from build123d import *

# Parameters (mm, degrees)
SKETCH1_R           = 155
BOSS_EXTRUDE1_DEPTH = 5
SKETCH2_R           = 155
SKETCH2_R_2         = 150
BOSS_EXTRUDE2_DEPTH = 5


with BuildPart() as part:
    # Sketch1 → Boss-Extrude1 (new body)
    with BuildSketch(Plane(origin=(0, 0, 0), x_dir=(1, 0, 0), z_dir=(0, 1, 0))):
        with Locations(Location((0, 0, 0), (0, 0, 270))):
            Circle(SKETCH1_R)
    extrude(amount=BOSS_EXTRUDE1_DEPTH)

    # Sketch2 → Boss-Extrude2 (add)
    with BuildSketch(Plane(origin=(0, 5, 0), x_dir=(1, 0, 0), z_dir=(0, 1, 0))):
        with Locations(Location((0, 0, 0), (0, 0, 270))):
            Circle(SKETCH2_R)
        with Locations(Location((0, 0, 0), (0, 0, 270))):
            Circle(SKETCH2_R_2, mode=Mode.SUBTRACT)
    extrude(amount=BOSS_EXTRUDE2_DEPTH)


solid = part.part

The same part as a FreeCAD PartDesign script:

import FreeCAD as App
import Part
import Sketcher

V = App.Vector

doc = App.newDocument("Part")
body = doc.addObject("PartDesign::Body", "Body")

# Sketch on XZ plane
sketch1 = body.newObject("Sketcher::SketchObject", "Sketch")
sketch1.AttachmentSupport = (doc.getObject("XZ_Plane"), [""])
sketch1.MapMode = "FlatFace"
sketch1.addGeometry(Part.Circle(V(0, 0, 0), V(0, 0, 1), 155), False)
sketch1.addConstraint(Sketcher.Constraint("Coincident", 0, 3, -1, 1))
sketch1.addConstraint(Sketcher.Constraint("Diameter", 0, 310.0))
pad1 = body.newObject("PartDesign::Pad", "Pad")
pad1.Profile = sketch1
pad1.Length = 5
pad1.Reversed = True

# Sketch on XZ plane
sketch2 = body.newObject("Sketcher::SketchObject", "Sketch001")
sketch2.AttachmentSupport = (doc.getObject("XZ_Plane"), [""])
sketch2.MapMode = "FlatFace"
sketch2.AttachmentOffset = App.Placement(V(0, 0, -5), App.Rotation())
sketch2.addGeometry(Part.Circle(V(0, 0, 0), V(0, 0, 1), 155), False)
sketch2.addGeometry(Part.Circle(V(0, 0, 0), V(0, 0, 1), 150), False)
sketch2.addConstraint(Sketcher.Constraint("Coincident", 0, 3, -1, 1))
sketch2.addConstraint(Sketcher.Constraint("Coincident", 1, 3, -1, 1))
sketch2.addConstraint(Sketcher.Constraint("Diameter", 0, 310.0))
sketch2.addConstraint(Sketcher.Constraint("Diameter", 1, 300.0))
pad2 = body.newObject("PartDesign::Pad", "Pad001")
pad2.Profile = sketch2
pad2.Length = 5
pad2.Reversed = True

doc.recompute()
